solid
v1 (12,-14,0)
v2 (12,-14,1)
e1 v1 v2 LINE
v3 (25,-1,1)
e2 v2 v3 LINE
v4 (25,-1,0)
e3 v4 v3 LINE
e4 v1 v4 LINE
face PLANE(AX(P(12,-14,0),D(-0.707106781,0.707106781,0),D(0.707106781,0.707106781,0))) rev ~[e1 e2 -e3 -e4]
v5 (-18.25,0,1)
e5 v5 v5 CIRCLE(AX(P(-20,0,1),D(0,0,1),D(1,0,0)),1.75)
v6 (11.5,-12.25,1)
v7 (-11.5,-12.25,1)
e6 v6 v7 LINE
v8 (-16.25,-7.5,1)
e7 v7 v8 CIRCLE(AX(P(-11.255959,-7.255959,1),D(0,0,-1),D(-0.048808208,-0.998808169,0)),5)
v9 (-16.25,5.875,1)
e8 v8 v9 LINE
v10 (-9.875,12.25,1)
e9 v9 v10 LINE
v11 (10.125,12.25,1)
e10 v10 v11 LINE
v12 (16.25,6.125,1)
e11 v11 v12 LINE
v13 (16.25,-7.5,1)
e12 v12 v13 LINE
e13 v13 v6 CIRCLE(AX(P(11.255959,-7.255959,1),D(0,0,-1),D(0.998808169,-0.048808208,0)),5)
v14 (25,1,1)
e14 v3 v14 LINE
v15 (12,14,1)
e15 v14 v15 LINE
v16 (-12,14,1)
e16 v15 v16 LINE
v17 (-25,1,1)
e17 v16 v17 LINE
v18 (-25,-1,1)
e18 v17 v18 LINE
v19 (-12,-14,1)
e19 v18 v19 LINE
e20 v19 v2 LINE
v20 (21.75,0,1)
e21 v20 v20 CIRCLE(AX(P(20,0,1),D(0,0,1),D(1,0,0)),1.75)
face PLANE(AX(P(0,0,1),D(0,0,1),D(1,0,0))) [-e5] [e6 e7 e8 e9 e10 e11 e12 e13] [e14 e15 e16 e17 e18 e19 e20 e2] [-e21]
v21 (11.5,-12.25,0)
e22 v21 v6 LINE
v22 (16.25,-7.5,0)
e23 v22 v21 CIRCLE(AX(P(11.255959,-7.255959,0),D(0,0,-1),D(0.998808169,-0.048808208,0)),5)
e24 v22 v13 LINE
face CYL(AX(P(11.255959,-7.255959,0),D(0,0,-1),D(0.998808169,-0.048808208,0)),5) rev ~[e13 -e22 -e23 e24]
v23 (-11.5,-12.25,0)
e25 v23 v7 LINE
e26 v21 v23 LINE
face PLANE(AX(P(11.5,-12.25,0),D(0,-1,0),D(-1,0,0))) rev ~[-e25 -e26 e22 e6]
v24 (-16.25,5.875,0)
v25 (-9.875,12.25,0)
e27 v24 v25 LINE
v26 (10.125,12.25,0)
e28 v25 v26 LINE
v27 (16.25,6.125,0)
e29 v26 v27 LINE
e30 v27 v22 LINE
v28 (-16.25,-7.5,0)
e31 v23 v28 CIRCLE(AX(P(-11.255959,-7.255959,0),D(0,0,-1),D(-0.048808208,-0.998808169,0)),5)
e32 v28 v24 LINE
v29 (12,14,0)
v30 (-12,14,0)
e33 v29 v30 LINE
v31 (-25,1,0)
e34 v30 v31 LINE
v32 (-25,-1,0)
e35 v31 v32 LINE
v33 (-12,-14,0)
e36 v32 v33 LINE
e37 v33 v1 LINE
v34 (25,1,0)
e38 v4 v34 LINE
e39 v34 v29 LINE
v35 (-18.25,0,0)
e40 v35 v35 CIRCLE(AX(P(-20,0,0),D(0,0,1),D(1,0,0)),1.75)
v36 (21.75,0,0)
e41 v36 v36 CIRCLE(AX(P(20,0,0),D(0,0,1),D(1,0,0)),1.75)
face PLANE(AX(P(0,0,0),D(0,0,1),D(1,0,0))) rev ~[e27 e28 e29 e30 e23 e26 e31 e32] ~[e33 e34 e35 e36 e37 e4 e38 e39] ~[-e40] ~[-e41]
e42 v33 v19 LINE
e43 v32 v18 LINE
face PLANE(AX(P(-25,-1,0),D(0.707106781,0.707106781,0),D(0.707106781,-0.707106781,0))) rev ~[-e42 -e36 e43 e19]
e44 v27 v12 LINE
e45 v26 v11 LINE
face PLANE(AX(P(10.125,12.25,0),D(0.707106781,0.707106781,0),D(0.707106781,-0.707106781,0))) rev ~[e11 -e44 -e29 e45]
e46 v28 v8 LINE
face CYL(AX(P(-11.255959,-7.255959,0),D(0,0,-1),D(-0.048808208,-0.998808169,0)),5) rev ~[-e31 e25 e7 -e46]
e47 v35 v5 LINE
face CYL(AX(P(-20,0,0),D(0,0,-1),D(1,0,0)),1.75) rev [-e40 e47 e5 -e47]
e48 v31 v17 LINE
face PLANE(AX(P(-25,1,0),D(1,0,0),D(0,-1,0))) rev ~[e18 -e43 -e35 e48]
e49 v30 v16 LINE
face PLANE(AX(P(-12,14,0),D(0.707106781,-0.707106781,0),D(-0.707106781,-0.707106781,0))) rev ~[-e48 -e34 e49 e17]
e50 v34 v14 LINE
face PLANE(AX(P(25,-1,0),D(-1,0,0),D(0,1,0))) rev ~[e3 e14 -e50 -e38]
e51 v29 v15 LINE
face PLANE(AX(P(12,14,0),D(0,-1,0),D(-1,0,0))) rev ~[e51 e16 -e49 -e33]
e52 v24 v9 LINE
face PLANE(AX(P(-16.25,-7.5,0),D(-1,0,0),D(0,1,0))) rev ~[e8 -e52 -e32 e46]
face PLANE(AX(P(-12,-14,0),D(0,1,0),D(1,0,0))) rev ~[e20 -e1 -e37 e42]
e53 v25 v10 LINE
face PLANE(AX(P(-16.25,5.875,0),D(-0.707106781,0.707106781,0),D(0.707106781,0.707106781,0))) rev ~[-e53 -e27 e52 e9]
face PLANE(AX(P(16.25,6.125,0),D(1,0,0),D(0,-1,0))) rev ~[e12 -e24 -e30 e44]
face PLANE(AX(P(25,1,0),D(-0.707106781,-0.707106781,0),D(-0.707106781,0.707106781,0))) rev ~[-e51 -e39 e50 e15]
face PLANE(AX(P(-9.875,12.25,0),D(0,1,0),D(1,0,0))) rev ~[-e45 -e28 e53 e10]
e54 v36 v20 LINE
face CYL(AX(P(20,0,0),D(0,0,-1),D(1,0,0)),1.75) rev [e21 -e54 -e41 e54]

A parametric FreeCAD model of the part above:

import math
import FreeCAD as App
import Part
import Sketcher

V = App.Vector
Q = App.Units.Quantity


def add_polygon(sketch, points):
    """Adds a closed chain of lines whose ends are joined by coincident constraints."""
    first, n = sketch.GeometryCount, len(points)
    for a, b in zip(points, points[1:] + points[:1]):
        sketch.addGeometry(Part.LineSegment(App.Vector(*a, 0), App.Vector(*b, 0)), False)
    for i in range(n):
        sketch.addConstraint(Sketcher.Constraint("Coincident", first + i, 2, first + (i + 1) % n, 1))

doc = App.newDocument("Part")
body = doc.addObject("PartDesign::Body", "Body")

# Sketch on XY plane
sketch1 = body.newObject("Sketcher::SketchObject", "Sketch")
sketch1.AttachmentSupport = (doc.getObject("XY_Plane"), [""])
sketch1.MapMode = "FlatFace"
add_polygon(sketch1, [(12, 14), (-12, 14), (-25, 1), (-25, -1), (-12, -14), (12, -14), (25, -1), (25, 1)])  # lines 0-7
sketch1.addGeometry(Part.Circle(V(-20, 0, 0), V(0, 0, 1), 1.8), False)  # 8
sketch1.addGeometry(Part.LineSegment(V(-16.2, -7.5, 0), V(-16.2, 5.9, 0)), False)  # 9
sketch1.addGeometry(Part.LineSegment(V(-16.2, 5.9, 0), V(-9.9, 12.2, 0)), False)  # 10
sketch1.addGeometry(Part.LineSegment(V(-9.9, 12.2, 0), V(10.1, 12.2, 0)), False)  # 11
sketch1.addGeometry(Part.LineSegment(V(10.1, 12.2, 0), V(16.2, 6.1, 0)), False)  # 12
sketch1.addGeometry(Part.LineSegment(V(16.2, 6.1, 0), V(16.2, -7.5, 0)), False)  # 13
sketch1.addGeometry(Part.ArcOfCircle(Part.Circle(V(11.3, -7.3, 0), V(0, 0, 1), 5), math.radians(-87), math.radians(-3)), False)  # 14
sketch1.addGeometry(Part.LineSegment(V(11.5, -12.2, 0), V(-11.5, -12.2, 0)), False)  # 15
sketch1.addGeometry(Part.ArcOfCircle(Part.Circle(V(-11.3, -7.3, 0), V(0, 0, 1), 5), math.radians(-177), math.radians(-93)), False)  # 16
sketch1.addGeometry(Part.Circle(V(20, 0, 0), V(0, 0, 1), 1.8), False)  # 17
sketch1.addConstraint([
    Sketcher.Constraint("Coincident", 9, 2, 10, 1),
    Sketcher.Constraint("Coincident", 10, 2, 11, 1),
    Sketcher.Constraint("Coincident", 11, 2, 12, 1),
    Sketcher.Constraint("Coincident", 12, 2, 13, 1),
    Sketcher.Constraint("Coincident", 13, 2, 14, 2),
    Sketcher.Constraint("Coincident", 14, 1, 15, 1),
    Sketcher.Constraint("Coincident", 15, 2, 16, 2),
    Sketcher.Constraint("Coincident", 16, 1, 9, 1),
    Sketcher.Constraint("Horizontal", 0),
    Sketcher.Constraint("Vertical", 2),
    Sketcher.Constraint("Horizontal", 4),
    Sketcher.Constraint("Vertical", 6),
    Sketcher.Constraint("Vertical", 9),
    Sketcher.Constraint("Horizontal", 11),
    Sketcher.Constraint("Vertical", 13),
    Sketcher.Constraint("Horizontal", 15),
    Sketcher.Constraint("Equal", 14, 16),
    Sketcher.Constraint("Equal", 8, 17),
    Sketcher.Constraint("Symmetric", 8, 3, 17, 3, -1, 1),
    Sketcher.Constraint("Symmetric", 0, 2, 4, 2, -1, 1),
    Sketcher.Constraint("Symmetric", 1, 2, 5, 2, -1, 1),
    Sketcher.Constraint("Symmetric", 14, 3, 16, 3, -2),
    Sketcher.Constraint("PointOnObject", 8, 3, -1),
    Sketcher.Constraint("Perpendicular", 1, 3),
    Sketcher.Constraint("Perpendicular", 5, 7),
    Sketcher.Constraint("Perpendicular", 7, 10),
    Sketcher.Constraint("Perpendicular", 10, 12),
    Sketcher.Constraint("Horizontal", 2, 2, 5, 2),
    Sketcher.Constraint("Horizontal", 1, 2, 6, 2),
    Sketcher.Constraint("Horizontal", 13, 2, 16, 1),
    Sketcher.Constraint("Vertical", 0, 2, 3, 2),
    Sketcher.Constraint("Radius", 14, Q("5 mm")),
    Sketcher.Constraint("Diameter", 8, Q("3.5 mm")),
    Sketcher.Constraint("DistanceX", 0, 2, 0, 1, Q("24 mm")),
    Sketcher.Constraint("DistanceX", 11, 1, 11, 2, Q("20 mm")),
    Sketcher.Constraint("DistanceX", 15, 2, 15, 1, Q("23 mm")),
    Sketcher.Constraint("DistanceY", 2, 2, 2, 1, Q("2 mm")),
    Sketcher.Constraint("DistanceX", 8, 3, -1, 1, Q("20 mm")),
    Sketcher.Constraint("DistanceY", -1, 1, 0, 2, Q("14 mm")),
    Sketcher.Constraint("DistanceY", 13, 2, -1, 1, Q("7.5 mm")),
    Sketcher.Constraint("DistanceY", 9, 1, 9, 2, Q("13.375 mm")),
    Sketcher.Constraint("DistanceY", 13, 2, 13, 1, Q("13.625 mm")),
    Sketcher.Constraint("DistanceX", 9, 2, -1, 1, Q("16.25 mm")),
    Sketcher.Constraint("DistanceY", 14, 1, -1, 1, Q("12.25 mm")),
])
pad1 = body.newObject("PartDesign::Pad", "Pad")
pad1.Profile = sketch1
pad1.Length = 1

doc.recompute()
